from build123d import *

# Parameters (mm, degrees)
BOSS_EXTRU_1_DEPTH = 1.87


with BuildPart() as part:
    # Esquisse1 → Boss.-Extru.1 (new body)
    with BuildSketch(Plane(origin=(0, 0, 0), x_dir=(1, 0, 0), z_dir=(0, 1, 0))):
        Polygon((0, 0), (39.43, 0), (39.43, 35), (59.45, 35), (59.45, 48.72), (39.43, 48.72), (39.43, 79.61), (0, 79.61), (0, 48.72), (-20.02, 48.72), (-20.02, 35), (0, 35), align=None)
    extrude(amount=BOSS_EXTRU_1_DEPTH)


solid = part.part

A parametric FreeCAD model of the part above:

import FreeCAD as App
import Part
import Sketcher
from FreeCAD import Vector
Q = App.Units.Quantity


def add_polygon(sketch, points):
    """Adds a closed chain of lines whose ends are joined by coincident constraints."""
    first, n = sketch.GeometryCount, len(points)
    for a, b in zip(points, points[1:] + points[:1]):
        sketch.addGeometry(Part.LineSegment(App.Vector(*a, 0), App.Vector(*b, 0)), False)
    for i in range(n):
        sketch.addConstraint(Sketcher.Constraint("Coincident", first + i, 2, first + (i + 1) % n, 1))

doc = App.newDocument("Part")
params = doc.addObject("Spreadsheet::Sheet", "Params")
for row, (alias, value) in enumerate([
    ("sketch1_height", "35 mm"),
    ("sketch1_width", "39.43 mm"),
    ("sketch1_width2", "20.02 mm"),
    ("sketch1_height2", "13.72 mm"),
    ("sketch1_height3", "30.89 mm"),
    ("pad1_length", "1.87 mm"),
], start=1):
    params.set(f"A{row}", alias)
    params.set(f"B{row}", "=" + value)
    params.setAlias(f"B{row}", alias)

body = doc.addObject("PartDesign::Body", "Body")

# Sketch on XZ plane
sketch1 = body.newObject("Sketcher::SketchObject", "Sketch")
sketch1.AttachmentSupport = (doc.getObject("XZ_Plane"), [""])
sketch1.MapMode = "FlatFace"
add_polygon(sketch1, [(0, 0), (39, 0), (39, -35), (59, -35), (59, -49), (39, -49), (39, -80), (0, -80), (0, -49), (-20, -49), (-20, -35), (0, -35)])  # lines 0-11
sketch1.addConstraint(Sketcher.Constraint("Horizontal", 0))
sketch1.addConstraint(Sketcher.Constraint("Vertical", 1))
sketch1.addConstraint(Sketcher.Constraint("Horizontal", 2))
sketch1.addConstraint(Sketcher.Constraint("Vertical", 3))
sketch1.addConstraint(Sketcher.Constraint("Horizontal", 4))
sketch1.addConstraint(Sketcher.Constraint("Vertical", 5))
sketch1.addConstraint(Sketcher.Constraint("Horizontal", 6))
sketch1.addConstraint(Sketcher.Constraint("Vertical", 7))
sketch1.addConstraint(Sketcher.Constraint("Horizontal", 8))
sketch1.addConstraint(Sketcher.Constraint("Vertical", 9))
sketch1.addConstraint(Sketcher.Constraint("Horizontal", 10))
sketch1.addConstraint(Sketcher.Constraint("Vertical", 11))
sketch1.addConstraint(Sketcher.Constraint("Coincident", 11, 2, -1, 1))
sketch1.addConstraint(Sketcher.Constraint("PointOnObject", 6, 2, -2))
sketch1.addConstraint(Sketcher.Constraint("Horizontal", 4, 2, 7, 2))
sketch1.addConstraint(Sketcher.Constraint("Horizontal", 2, 2, 9, 2))
sketch1.addConstraint(Sketcher.Constraint("Vertical", 1, 2, 4, 2))
sketch1.addConstraint(Sketcher.Constraint("Equal", 4, 8))
sketch1.addConstraint(Sketcher.Constraint("DistanceY", 1, 2, 1, 1, Q("35 mm")))
sketch1.addConstraint(Sketcher.Constraint("DistanceX", 0, 1, 0, 2, Q("39.43 mm")))
sketch1.addConstraint(Sketcher.Constraint("DistanceX", 2, 1, 2, 2, Q("20.02 mm")))
sketch1.addConstraint(Sketcher.Constraint("DistanceY", 3, 2, 3, 1, Q("13.72 mm")))
sketch1.addConstraint(Sketcher.Constraint("DistanceY", 5, 2, 5, 1, Q("30.89 mm")))
sketch1.setExpression("Constraints[30]", "Params.sketch1_height")
sketch1.setExpression("Constraints[31]", "Params.sketch1_width")
sketch1.setExpression("Constraints[32]", "Params.sketch1_width2")
sketch1.setExpression("Constraints[33]", "Params.sketch1_height2")
sketch1.setExpression("Constraints[34]", "Params.sketch1_height3")
pad1 = body.newObject("PartDesign::Pad", "Pad")
pad1.Profile = sketch1
pad1.setExpression("Length", "Params.pad1_length")
pad1.Reversed = True

doc.recompute()
